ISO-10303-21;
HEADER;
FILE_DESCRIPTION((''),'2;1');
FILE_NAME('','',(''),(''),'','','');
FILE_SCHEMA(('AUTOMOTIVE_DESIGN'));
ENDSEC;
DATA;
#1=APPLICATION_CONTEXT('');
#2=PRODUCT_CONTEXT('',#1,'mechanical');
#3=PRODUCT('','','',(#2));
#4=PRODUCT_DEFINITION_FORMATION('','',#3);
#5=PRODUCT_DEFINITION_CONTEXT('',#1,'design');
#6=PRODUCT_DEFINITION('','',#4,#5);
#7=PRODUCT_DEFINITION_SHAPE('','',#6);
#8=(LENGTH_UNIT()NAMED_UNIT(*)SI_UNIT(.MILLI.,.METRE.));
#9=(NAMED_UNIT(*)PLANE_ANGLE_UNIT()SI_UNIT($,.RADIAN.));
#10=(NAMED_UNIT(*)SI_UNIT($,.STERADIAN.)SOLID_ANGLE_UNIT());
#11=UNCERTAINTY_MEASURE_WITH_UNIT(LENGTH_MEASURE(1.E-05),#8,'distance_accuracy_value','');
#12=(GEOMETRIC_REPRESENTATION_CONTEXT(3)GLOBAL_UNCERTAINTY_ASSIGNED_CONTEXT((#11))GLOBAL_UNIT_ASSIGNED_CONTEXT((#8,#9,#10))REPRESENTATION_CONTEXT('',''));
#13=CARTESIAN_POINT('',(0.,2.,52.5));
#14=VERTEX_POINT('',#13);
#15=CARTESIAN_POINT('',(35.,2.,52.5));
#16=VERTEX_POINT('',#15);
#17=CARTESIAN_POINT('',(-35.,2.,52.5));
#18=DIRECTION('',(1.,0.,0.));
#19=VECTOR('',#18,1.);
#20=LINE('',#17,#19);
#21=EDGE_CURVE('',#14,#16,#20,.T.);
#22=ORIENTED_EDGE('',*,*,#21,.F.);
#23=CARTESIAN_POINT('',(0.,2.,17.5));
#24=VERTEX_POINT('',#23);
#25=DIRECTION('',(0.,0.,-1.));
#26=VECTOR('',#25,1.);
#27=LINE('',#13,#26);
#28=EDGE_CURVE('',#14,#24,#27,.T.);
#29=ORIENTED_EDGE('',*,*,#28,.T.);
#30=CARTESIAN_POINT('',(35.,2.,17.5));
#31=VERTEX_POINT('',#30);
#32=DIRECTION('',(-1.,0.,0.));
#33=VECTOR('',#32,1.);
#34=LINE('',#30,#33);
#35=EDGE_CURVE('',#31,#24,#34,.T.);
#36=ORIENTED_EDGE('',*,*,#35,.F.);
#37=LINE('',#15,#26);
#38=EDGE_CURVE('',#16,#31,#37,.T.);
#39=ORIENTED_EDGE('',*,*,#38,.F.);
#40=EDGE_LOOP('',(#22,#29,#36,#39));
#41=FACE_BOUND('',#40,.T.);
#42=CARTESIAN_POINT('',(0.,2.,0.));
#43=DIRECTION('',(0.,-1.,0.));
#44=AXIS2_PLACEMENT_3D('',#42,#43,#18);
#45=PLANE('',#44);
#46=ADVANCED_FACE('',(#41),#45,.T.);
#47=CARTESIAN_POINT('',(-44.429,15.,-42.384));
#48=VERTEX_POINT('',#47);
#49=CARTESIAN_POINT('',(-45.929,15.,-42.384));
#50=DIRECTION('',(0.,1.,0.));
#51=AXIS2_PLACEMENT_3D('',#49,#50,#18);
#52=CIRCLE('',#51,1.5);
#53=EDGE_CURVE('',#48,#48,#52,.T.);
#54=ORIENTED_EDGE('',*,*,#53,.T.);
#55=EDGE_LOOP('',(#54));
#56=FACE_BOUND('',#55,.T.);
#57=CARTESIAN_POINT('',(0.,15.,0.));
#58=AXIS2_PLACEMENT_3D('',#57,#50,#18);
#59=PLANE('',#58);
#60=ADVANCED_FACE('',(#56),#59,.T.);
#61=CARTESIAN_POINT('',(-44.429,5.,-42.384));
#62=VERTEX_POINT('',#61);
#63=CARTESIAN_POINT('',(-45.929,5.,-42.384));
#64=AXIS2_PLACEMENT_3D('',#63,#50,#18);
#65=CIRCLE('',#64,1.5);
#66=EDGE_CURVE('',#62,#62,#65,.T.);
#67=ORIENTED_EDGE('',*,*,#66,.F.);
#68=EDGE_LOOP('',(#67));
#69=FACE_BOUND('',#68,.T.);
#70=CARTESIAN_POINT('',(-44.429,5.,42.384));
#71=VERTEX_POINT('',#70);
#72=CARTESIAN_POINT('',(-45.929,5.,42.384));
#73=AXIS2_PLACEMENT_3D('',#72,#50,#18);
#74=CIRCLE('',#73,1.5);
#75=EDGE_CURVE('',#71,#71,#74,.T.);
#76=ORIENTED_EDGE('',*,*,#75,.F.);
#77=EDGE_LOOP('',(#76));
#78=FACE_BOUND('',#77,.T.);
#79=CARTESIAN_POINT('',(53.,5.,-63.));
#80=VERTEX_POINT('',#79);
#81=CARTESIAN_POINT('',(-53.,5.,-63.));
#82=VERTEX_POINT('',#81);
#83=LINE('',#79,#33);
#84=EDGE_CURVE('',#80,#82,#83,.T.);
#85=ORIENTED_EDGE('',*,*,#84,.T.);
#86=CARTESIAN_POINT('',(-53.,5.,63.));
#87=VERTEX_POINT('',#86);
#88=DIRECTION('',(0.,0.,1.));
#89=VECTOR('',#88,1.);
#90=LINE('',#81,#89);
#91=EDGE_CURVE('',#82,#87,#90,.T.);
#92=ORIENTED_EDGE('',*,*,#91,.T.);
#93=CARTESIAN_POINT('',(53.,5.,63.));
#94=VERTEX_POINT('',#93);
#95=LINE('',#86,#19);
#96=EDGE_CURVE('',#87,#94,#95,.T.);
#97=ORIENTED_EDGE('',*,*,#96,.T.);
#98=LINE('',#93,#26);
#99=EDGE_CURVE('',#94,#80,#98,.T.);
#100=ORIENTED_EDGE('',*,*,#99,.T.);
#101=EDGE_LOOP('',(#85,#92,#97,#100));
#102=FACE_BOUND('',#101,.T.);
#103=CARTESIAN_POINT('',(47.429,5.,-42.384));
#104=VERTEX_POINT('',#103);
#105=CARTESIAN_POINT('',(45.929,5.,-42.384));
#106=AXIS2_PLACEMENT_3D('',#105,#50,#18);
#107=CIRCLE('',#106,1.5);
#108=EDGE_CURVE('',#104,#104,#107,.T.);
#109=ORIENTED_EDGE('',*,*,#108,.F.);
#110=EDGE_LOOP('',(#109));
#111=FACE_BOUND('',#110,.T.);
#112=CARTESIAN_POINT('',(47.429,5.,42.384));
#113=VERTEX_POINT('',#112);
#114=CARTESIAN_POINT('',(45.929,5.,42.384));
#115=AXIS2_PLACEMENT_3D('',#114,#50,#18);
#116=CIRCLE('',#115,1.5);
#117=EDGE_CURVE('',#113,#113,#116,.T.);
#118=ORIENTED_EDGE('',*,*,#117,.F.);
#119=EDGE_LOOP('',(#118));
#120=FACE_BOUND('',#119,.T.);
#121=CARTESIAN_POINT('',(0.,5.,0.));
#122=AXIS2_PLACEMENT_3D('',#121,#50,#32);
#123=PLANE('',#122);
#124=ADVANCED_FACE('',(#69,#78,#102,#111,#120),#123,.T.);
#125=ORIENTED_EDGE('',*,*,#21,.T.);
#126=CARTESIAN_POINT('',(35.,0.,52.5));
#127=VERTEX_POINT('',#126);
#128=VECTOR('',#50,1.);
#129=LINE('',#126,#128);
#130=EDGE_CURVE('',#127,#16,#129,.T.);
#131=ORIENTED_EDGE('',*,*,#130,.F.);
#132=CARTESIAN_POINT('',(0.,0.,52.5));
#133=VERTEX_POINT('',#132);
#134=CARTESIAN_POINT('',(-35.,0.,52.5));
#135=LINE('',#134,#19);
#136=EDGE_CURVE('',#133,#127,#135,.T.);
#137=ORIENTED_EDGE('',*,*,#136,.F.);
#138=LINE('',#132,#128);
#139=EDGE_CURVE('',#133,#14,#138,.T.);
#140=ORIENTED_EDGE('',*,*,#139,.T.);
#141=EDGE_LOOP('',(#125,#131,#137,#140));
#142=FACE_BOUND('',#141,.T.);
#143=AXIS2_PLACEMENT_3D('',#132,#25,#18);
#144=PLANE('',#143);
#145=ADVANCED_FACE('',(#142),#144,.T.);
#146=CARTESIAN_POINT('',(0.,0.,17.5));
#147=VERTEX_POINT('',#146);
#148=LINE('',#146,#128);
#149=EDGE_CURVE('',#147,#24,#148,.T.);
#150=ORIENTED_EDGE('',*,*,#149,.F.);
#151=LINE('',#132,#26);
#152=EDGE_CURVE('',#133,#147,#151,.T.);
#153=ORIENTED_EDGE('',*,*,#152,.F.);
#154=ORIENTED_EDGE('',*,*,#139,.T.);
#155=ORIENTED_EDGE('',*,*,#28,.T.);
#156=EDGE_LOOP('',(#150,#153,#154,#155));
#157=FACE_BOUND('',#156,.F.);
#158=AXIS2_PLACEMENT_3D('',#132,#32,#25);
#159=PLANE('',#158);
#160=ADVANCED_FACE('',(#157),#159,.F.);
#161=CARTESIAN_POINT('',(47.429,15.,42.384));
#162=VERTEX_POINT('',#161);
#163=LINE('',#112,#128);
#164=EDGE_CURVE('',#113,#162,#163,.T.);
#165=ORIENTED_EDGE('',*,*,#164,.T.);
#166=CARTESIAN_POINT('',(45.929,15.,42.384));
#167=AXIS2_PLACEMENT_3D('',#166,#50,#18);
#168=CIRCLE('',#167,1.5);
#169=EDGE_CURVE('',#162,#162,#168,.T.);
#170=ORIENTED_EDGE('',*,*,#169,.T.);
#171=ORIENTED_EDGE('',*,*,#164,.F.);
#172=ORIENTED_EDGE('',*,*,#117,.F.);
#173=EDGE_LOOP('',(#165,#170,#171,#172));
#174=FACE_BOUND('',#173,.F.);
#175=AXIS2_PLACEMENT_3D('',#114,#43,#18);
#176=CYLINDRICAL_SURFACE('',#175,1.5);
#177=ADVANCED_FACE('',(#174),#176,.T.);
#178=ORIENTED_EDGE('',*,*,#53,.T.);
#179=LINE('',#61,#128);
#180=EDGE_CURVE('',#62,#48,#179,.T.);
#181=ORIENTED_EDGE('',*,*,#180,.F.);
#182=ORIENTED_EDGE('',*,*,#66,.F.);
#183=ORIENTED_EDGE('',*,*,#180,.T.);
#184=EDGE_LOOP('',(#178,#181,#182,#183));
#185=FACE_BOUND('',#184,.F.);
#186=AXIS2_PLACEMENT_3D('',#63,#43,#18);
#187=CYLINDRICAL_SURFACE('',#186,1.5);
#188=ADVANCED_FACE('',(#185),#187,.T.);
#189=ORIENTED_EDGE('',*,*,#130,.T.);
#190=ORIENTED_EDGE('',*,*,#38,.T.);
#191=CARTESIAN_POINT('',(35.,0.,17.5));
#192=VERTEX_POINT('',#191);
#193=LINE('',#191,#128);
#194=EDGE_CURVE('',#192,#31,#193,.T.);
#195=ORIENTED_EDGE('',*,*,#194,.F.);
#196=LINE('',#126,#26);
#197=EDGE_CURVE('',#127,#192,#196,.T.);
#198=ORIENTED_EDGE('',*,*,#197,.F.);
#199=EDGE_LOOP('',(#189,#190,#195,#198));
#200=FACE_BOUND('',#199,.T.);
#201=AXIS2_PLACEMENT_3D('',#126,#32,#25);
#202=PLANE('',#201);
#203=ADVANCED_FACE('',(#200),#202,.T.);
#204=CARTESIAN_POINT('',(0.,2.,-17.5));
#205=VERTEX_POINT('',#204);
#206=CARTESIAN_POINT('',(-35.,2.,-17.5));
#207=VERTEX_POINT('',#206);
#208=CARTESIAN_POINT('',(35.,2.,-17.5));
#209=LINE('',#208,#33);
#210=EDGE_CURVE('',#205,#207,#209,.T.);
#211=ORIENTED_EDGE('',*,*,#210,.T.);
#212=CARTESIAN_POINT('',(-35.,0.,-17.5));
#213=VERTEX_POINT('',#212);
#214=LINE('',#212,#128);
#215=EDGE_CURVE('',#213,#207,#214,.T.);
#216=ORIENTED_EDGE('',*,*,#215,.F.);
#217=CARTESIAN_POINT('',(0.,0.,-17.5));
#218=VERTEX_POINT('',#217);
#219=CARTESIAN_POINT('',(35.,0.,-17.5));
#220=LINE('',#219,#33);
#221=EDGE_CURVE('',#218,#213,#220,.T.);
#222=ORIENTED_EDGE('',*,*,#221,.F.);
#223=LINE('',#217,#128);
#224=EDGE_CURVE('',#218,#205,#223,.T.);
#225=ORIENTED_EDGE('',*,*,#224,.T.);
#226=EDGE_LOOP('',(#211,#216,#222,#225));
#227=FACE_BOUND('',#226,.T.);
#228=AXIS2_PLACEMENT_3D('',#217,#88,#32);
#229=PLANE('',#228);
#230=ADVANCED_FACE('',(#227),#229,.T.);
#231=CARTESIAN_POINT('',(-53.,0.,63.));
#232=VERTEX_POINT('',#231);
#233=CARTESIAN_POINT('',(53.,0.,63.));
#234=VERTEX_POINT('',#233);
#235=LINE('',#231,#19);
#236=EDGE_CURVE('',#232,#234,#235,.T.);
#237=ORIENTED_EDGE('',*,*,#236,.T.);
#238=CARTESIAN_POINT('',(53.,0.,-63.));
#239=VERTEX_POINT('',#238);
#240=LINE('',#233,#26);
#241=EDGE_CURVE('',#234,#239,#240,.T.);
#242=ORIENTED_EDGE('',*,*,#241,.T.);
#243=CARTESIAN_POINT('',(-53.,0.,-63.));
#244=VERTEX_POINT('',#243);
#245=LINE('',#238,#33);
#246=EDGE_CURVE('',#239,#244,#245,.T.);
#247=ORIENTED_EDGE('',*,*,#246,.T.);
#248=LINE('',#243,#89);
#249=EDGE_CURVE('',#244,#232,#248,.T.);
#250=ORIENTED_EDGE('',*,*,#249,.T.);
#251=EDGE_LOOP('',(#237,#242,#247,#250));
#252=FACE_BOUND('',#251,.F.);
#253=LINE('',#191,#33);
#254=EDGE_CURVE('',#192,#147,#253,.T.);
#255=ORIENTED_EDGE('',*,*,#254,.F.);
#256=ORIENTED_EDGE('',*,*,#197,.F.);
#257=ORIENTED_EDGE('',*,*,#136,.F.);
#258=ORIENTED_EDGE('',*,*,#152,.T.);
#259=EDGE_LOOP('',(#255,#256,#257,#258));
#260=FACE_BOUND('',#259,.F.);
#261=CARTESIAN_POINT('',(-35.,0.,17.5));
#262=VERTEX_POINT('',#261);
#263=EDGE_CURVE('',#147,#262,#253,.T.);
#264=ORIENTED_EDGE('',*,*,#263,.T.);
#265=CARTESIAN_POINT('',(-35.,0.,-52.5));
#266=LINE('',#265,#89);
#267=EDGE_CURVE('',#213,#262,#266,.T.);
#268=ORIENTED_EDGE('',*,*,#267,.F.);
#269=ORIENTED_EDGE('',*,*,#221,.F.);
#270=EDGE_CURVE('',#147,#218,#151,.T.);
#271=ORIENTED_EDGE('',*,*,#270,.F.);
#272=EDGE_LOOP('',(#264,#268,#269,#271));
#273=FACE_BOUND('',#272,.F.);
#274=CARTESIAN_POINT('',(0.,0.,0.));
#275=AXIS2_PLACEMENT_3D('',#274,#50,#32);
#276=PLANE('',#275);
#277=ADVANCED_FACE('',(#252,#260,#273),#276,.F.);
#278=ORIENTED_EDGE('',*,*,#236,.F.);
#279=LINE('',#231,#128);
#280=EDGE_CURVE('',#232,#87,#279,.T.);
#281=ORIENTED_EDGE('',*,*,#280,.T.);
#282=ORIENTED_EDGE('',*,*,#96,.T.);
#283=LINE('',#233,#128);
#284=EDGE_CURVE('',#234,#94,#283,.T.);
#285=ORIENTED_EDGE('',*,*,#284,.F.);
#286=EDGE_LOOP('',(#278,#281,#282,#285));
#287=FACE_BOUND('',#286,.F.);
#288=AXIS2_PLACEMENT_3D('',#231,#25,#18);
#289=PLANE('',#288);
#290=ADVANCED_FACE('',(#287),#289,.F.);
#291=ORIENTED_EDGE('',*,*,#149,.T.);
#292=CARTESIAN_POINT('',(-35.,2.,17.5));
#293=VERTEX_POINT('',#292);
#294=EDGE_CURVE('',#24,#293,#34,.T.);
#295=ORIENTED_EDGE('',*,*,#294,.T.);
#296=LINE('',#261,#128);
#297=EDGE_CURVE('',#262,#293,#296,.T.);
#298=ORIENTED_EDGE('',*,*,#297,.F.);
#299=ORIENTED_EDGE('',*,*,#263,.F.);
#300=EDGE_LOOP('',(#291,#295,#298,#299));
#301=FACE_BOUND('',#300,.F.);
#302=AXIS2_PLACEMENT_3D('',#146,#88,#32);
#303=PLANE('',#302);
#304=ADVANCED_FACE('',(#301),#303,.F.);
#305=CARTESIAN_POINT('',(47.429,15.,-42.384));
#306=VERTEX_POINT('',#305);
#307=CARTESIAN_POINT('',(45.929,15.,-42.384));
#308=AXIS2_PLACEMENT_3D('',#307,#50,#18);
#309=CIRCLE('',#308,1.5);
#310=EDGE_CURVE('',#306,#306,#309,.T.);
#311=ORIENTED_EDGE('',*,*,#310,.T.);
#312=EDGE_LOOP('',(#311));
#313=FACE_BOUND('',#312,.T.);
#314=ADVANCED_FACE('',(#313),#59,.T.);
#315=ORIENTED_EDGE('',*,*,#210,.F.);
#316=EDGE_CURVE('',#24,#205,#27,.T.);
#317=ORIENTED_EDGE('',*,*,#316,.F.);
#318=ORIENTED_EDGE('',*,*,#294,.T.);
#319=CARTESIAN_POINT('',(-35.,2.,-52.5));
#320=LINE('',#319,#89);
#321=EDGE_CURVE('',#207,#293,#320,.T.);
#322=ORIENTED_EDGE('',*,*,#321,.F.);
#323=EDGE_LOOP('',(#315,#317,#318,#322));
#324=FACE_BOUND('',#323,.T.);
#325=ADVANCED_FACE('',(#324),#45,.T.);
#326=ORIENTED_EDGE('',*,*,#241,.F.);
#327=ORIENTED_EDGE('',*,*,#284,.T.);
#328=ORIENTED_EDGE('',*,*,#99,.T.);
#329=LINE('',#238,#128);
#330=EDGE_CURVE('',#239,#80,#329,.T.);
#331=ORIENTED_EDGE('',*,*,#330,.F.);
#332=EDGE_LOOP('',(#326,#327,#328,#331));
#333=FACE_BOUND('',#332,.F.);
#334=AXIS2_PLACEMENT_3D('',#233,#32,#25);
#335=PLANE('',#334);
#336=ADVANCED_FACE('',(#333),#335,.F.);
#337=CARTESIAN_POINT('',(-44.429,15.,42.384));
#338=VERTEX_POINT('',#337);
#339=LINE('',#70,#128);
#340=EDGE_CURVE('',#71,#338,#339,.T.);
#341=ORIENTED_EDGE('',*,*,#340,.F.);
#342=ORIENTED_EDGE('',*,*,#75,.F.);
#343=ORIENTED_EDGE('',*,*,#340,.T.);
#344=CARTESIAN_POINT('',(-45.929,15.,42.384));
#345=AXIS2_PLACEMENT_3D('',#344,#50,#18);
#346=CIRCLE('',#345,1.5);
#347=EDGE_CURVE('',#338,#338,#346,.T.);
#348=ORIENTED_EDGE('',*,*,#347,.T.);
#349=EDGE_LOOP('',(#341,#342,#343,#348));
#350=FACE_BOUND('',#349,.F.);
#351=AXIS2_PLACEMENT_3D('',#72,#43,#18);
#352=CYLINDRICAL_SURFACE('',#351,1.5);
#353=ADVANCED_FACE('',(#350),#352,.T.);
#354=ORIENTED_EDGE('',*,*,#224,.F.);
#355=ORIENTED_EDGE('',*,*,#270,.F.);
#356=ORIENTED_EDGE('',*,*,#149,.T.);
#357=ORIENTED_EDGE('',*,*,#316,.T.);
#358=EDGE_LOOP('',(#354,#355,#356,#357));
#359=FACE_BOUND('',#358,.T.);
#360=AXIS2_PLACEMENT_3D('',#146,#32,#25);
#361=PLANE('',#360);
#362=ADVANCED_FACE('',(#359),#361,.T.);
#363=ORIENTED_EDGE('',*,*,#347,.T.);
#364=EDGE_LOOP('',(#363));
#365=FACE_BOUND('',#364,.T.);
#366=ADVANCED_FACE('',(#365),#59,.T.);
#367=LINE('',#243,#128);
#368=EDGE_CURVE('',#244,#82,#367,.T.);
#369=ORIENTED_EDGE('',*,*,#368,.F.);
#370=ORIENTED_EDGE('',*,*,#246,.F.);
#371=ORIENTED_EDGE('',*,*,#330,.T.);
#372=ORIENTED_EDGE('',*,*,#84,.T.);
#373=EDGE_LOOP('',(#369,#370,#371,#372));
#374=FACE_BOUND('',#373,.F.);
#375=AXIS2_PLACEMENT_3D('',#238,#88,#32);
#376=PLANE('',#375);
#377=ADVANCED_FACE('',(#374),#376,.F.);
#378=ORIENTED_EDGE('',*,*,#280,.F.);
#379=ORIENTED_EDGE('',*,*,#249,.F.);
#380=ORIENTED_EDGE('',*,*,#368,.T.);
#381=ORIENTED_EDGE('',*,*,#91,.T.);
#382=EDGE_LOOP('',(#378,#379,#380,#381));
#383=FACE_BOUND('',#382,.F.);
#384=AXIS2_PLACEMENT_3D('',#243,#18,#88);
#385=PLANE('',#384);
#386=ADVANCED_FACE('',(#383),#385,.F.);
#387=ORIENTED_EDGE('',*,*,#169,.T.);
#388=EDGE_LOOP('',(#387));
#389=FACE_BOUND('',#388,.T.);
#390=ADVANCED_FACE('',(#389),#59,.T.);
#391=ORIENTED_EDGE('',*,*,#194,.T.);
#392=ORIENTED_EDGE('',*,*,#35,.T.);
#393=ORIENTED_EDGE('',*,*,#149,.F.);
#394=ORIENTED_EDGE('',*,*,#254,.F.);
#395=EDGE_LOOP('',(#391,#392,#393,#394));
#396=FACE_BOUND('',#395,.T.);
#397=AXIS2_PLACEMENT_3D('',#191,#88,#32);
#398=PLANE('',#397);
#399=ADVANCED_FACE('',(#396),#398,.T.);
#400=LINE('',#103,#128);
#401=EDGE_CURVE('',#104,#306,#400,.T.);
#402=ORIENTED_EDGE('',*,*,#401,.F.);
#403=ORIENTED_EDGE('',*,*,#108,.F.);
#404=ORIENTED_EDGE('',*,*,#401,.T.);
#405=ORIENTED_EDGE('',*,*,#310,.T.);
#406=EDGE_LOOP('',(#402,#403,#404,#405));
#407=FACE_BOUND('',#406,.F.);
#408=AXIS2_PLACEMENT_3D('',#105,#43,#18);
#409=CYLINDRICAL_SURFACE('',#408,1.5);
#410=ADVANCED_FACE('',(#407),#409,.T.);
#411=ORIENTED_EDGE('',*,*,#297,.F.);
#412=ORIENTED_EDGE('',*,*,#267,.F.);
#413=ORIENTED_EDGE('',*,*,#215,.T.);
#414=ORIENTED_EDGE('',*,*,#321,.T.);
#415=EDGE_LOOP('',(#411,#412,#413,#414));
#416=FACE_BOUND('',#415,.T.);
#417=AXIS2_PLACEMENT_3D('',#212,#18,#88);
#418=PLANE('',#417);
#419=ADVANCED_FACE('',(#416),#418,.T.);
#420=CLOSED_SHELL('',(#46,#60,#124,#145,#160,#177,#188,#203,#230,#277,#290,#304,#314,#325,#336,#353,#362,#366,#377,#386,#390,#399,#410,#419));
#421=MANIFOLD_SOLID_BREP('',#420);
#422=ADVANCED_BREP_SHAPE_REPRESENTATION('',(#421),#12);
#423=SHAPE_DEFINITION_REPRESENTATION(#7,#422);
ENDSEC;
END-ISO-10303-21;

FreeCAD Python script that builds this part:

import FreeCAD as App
import Part
import Sketcher
from FreeCAD import Vector
Q = App.Units.Quantity


def add_polygon(sketch, points):
    """Adds a closed chain of lines whose ends are joined by coincident constraints."""
    first, n = sketch.GeometryCount, len(points)
    for a, b in zip(points, points[1:] + points[:1]):
        sketch.addGeometry(Part.LineSegment(App.Vector(*a, 0), App.Vector(*b, 0)), False)
    for i in range(n):
        sketch.addConstraint(Sketcher.Constraint("Coincident", first + i, 2, first + (i + 1) % n, 1))

doc = App.newDocument("Part")
body = doc.addObject("PartDesign::Body", "Body")

# Sketch on XZ plane
sketch1 = body.newObject("Sketcher::SketchObject", "Sketch")
sketch1.AttachmentSupport = (doc.getObject("XZ_Plane"), [""])
sketch1.MapMode = "FlatFace"
add_polygon(sketch1, [(-53, -63), (-53, 63), (53, 63), (53, -63)])  # lines 0-3
sketch1.addConstraint([
    Sketcher.Constraint("Vertical", 0),
    Sketcher.Constraint("Horizontal", 1),
    Sketcher.Constraint("Vertical", 2),
    Sketcher.Constraint("Horizontal", 3),
    Sketcher.Constraint("Symmetric", 0, 2, 2, 2, -1, 1),
    Sketcher.Constraint("DistanceX", 1, 1, 1, 2, Q("106 mm")),
    Sketcher.Constraint("DistanceY", 0, 1, 0, 2, Q("126 mm")),
])
pad1 = body.newObject("PartDesign::Pad", "Pad")
pad1.Profile = sketch1
pad1.Length = 5
pad1.Reversed = True

# Sketch on XZ plane
sketch2 = body.newObject("Sketcher::SketchObject", "Sketch001")
sketch2.AttachmentSupport = (doc.getObject("XZ_Plane"), [""])
sketch2.MapMode = "FlatFace"
sketch2.AttachmentOffset = App.Placement(Vector(0, 0, -5), App.Rotation())
sketch2.addGeometry([
    Part.Circle(Vector(-45.9, 42.4, 0), Vector(0, 0, 1), 1.5),
    Part.Circle(Vector(-45.9, -42.4, 0), Vector(0, 0, 1), 1.5),
    Part.Circle(Vector(45.9, 42.4, 0), Vector(0, 0, 1), 1.5),
    Part.Circle(Vector(45.9, -42.4, 0), Vector(0, 0, 1), 1.5),
], False)
sketch2.addConstraint([
    Sketcher.Constraint("Equal", 0, 1),
    Sketcher.Constraint("Equal", 1, 2),
    Sketcher.Constraint("Equal", 2, 3),
    Sketcher.Constraint("Symmetric", 1, 3, 2, 3, -1, 1),
    Sketcher.Constraint("Symmetric", 0, 3, 3, 3, -1, 1),
    Sketcher.Constraint("Symmetric", 0, 3, 2, 3, -2),
    Sketcher.Constraint("Diameter", 0, Q("3 mm")),
    Sketcher.Constraint("DistanceX", 0, 3, -1, 1, Q("45.929 mm")),
    Sketcher.Constraint("DistanceY", -1, 1, 0, 3, Q("42.384 mm")),
])
pad2 = body.newObject("PartDesign::Pad", "Pad001")
pad2.Profile = sketch2
pad2.Length = 10
pad2.Reversed = True

# Sketch on XZ plane
sketch3 = body.newObject("Sketcher::SketchObject", "Sketch002")
sketch3.AttachmentSupport = (doc.getObject("XZ_Plane"), [""])
sketch3.MapMode = "FlatFace"
add_polygon(sketch3, [(35, 52), (0, 52), (0, 18), (35, 18)])  # lines 0-3
add_polygon(sketch3, [(0, 18), (-35, 18), (-35, -18), (0, -18)])  # lines 4-7
sketch3.addConstraint([
    Sketcher.Constraint("Horizontal", 0),
    Sketcher.Constraint("Vertical", 1),
    Sketcher.Constraint("Horizontal", 2),
    Sketcher.Constraint("Vertical", 3),
    Sketcher.Constraint("Horizontal", 4),
    Sketcher.Constraint("Vertical", 5),
    Sketcher.Constraint("Horizontal", 6),
    Sketcher.Constraint("Vertical", 7),
    Sketcher.Constraint("Coincident", 7, 2, 1, 2),
    Sketcher.Constraint("Symmetric", 2, 2, 5, 2, -1, 1),
    Sketcher.Constraint("PointOnObject", 0, 2, -2),
    Sketcher.Constraint("Equal", 6, 1),
    Sketcher.Constraint("Equal", 3, 5),
    Sketcher.Constraint("DistanceX", 0, 2, 0, 1, Q("35 mm")),
])
pocket1 = body.newObject("PartDesign::Pocket", "Pocket")
pocket1.Profile = sketch3
pocket1.Length = 2

doc.recompute()
